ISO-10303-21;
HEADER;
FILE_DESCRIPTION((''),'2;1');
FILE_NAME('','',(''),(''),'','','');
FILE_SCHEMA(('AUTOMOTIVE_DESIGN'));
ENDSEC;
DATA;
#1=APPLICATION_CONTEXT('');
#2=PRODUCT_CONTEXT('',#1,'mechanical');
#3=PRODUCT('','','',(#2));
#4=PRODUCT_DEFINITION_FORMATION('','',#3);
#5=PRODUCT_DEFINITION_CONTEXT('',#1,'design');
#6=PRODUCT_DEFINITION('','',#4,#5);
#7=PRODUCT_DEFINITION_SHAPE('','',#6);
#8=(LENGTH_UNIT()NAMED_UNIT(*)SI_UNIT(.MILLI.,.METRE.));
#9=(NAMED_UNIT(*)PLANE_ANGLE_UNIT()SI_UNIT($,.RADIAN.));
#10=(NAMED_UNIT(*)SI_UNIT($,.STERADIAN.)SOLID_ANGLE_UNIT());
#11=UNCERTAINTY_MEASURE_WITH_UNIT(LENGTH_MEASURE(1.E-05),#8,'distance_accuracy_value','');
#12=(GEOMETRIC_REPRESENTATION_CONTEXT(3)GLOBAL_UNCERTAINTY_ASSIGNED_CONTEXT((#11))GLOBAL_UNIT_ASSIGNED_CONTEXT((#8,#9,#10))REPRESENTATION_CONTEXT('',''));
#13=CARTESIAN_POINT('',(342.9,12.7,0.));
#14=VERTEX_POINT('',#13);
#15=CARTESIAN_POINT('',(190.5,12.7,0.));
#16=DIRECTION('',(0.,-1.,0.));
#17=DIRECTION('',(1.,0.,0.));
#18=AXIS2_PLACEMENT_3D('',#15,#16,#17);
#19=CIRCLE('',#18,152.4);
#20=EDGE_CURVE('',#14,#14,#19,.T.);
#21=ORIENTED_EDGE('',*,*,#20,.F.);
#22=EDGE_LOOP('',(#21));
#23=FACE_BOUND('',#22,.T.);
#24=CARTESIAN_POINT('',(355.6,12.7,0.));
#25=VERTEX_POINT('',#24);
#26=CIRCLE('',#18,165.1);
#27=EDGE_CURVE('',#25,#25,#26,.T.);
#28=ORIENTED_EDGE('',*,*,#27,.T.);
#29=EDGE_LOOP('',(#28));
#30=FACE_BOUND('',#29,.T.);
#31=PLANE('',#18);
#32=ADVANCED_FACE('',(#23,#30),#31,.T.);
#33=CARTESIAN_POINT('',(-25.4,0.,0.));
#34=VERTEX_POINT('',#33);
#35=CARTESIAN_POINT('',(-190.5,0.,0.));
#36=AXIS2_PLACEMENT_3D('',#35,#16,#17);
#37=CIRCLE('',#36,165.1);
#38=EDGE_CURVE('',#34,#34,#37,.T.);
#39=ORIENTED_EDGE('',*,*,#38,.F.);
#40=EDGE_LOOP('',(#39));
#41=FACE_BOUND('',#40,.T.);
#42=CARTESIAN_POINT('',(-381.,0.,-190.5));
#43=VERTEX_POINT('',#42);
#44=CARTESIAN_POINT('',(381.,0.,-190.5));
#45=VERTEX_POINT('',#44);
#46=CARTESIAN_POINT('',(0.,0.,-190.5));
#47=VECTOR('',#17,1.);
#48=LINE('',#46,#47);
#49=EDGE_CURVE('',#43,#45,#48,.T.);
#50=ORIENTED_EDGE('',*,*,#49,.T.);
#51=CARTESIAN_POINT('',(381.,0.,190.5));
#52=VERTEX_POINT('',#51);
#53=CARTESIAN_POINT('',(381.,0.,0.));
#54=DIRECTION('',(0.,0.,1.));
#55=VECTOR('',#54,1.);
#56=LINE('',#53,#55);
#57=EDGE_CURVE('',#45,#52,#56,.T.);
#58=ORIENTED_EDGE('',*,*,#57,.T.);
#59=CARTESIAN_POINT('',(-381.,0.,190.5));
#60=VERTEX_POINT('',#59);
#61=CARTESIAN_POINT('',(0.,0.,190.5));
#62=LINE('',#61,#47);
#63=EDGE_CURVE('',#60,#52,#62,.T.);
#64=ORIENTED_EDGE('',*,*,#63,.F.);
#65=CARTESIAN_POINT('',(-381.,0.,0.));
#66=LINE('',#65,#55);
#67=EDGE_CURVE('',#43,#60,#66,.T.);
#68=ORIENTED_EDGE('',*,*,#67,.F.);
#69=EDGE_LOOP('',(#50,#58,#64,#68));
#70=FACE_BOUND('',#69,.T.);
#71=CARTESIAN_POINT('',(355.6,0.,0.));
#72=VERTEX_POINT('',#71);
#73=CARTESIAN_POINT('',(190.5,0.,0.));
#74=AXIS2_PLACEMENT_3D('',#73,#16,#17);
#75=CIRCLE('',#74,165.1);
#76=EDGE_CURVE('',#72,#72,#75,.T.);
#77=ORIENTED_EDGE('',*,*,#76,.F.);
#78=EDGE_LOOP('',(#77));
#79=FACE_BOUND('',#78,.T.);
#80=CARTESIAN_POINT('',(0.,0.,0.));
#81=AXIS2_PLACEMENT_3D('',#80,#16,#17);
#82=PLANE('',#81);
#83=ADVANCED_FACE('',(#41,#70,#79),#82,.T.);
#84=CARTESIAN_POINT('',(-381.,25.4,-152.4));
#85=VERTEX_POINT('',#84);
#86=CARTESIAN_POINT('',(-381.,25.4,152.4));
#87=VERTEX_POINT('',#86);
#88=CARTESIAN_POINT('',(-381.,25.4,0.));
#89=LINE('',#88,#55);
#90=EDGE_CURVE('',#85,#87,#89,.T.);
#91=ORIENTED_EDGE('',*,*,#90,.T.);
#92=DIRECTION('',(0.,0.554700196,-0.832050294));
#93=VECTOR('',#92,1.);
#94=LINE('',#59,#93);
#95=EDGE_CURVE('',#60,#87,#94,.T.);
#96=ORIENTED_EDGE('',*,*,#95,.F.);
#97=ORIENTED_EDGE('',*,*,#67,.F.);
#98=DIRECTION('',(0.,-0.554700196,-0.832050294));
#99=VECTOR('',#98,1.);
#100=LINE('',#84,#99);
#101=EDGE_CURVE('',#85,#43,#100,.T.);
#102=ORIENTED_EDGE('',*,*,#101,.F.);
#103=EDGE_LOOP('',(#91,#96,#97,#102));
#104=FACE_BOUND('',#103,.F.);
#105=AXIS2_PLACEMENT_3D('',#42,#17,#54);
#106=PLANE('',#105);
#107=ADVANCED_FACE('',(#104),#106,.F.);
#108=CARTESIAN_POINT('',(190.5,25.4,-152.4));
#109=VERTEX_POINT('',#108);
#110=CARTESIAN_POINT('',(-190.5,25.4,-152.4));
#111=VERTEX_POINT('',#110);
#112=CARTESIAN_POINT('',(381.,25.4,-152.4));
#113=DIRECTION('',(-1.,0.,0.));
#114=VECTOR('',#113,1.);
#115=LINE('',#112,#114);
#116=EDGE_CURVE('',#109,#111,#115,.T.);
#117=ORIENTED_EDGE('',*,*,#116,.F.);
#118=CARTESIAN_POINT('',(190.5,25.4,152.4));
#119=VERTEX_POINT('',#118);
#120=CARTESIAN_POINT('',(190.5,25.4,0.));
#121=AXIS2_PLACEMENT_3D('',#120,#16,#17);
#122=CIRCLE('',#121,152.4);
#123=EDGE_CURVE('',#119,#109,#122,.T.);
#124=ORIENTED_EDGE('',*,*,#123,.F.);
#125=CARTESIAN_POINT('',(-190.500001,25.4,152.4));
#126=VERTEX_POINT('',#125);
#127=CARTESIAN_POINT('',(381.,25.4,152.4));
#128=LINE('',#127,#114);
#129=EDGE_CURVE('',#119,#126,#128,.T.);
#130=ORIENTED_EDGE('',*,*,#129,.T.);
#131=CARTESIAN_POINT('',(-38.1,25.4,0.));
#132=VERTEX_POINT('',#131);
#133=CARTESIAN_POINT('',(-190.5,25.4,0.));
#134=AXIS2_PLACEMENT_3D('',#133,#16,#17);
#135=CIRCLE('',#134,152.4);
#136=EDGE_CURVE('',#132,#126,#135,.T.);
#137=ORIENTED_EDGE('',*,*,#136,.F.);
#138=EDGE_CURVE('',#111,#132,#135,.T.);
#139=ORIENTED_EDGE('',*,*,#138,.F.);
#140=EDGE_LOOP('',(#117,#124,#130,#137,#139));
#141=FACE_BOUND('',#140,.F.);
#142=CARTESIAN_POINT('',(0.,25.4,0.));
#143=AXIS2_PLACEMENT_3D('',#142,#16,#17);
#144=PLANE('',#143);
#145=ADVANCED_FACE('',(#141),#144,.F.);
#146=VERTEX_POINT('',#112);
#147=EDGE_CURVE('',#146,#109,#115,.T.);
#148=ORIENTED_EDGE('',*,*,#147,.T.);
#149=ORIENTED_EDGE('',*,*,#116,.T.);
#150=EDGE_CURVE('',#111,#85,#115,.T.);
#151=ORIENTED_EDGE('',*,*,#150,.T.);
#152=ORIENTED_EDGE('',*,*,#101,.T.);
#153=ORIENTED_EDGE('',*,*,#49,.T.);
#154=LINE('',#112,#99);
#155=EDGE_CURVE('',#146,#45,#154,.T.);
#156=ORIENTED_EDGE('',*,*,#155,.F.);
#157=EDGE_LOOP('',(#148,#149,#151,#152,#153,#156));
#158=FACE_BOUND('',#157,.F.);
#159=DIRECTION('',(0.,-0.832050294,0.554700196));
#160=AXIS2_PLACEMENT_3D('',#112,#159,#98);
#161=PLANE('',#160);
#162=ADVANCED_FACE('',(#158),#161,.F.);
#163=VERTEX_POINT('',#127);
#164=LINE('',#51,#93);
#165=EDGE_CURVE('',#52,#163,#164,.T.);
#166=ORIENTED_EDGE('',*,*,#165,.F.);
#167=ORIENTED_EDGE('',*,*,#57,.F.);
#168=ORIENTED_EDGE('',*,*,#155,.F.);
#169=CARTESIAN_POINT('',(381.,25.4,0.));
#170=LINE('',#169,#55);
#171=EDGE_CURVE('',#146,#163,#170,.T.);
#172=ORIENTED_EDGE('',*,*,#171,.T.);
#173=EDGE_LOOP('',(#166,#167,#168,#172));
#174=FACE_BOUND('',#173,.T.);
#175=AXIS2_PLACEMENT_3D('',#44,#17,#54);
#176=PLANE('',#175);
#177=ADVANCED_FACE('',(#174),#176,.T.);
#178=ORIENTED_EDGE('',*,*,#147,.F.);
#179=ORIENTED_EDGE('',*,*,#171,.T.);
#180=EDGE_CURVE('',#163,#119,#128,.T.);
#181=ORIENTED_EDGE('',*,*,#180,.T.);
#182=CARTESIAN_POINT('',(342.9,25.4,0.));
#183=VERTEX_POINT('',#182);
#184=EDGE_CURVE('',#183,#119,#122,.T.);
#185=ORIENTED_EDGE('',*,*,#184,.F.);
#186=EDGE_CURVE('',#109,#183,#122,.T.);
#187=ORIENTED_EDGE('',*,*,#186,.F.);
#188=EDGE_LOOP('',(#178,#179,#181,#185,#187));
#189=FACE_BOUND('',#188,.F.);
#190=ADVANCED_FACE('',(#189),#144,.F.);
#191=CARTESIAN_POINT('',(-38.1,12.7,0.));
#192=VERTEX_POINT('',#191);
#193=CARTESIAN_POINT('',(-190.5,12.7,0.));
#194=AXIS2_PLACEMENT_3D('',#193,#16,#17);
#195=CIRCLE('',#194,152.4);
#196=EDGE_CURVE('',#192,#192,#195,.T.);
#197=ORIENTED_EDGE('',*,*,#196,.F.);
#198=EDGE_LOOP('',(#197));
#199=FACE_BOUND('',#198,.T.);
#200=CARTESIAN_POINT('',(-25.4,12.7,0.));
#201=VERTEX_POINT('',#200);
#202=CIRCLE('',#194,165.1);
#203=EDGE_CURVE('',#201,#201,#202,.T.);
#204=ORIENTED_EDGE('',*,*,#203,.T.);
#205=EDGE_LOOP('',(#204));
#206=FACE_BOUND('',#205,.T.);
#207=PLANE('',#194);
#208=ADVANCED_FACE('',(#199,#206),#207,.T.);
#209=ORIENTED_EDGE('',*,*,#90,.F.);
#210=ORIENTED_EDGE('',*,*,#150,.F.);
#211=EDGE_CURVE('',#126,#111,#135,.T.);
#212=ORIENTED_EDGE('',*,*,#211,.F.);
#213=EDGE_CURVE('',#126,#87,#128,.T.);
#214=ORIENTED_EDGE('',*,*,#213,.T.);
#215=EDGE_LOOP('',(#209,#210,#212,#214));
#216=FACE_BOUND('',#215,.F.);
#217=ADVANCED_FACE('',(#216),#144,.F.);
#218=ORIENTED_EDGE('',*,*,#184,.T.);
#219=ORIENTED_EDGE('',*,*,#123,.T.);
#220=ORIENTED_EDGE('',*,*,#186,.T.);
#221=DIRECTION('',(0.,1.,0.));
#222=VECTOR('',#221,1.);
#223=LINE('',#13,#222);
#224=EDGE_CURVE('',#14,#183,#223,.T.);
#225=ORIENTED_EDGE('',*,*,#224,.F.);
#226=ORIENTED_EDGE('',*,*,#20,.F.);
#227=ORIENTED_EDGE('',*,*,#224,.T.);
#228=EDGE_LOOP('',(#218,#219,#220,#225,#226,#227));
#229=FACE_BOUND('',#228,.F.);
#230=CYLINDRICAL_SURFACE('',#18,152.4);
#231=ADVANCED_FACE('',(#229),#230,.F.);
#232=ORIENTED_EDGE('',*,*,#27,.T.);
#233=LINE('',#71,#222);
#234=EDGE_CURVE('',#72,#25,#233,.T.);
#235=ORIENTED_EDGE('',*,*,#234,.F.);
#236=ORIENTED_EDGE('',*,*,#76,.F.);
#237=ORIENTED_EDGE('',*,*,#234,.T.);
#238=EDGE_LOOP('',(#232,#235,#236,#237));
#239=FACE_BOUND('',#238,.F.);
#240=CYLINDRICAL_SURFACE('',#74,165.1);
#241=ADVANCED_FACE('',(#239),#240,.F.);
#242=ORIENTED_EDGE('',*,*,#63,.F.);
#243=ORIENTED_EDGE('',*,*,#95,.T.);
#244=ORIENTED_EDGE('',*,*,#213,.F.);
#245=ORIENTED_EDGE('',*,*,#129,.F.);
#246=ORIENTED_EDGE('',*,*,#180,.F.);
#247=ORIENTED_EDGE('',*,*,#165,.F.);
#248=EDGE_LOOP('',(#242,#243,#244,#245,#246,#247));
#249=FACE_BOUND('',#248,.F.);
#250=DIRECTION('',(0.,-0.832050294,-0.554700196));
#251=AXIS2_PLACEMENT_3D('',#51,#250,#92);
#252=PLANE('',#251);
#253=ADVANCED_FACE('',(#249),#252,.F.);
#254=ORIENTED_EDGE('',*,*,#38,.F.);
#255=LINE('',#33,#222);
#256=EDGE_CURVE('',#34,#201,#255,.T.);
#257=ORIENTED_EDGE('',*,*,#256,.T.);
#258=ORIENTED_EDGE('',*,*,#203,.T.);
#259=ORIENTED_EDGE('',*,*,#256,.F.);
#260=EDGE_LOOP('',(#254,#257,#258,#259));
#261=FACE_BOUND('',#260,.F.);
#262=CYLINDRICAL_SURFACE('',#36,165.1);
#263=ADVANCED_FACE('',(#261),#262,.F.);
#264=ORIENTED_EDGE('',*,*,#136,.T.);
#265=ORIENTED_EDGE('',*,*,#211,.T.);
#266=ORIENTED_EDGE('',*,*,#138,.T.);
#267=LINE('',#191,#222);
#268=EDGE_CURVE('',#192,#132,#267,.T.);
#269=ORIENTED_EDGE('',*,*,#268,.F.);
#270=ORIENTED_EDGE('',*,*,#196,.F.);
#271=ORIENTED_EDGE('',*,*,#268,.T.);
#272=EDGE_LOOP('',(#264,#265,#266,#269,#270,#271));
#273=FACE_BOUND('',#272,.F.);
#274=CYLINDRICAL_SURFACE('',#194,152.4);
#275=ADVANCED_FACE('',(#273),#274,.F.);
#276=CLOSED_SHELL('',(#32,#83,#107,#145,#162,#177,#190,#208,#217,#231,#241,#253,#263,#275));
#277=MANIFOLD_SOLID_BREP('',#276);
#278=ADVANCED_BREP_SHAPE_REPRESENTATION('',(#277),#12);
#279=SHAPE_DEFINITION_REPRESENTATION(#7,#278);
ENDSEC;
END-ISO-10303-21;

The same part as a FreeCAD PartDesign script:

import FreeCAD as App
import Part
import Sketcher
Q = App.Units.Quantity


def add_polygon(sketch, points):
    """Adds a closed chain of lines whose ends are joined by coincident constraints."""
    first, n = sketch.GeometryCount, len(points)
    for a, b in zip(points, points[1:] + points[:1]):
        sketch.addGeometry(Part.LineSegment(App.Vector(*a, 0), App.Vector(*b, 0)), False)
    for i in range(n):
        sketch.addConstraint(Sketcher.Constraint("Coincident", first + i, 2, first + (i + 1) % n, 1))

doc = App.newDocument("Part")
body = doc.addObject("PartDesign::Body", "Body")

sketch1 = body.newObject("Sketcher::SketchObject", "Sketch")
sketch1.AttachmentSupport = (doc.getObject("XZ_Plane"), [""])
sketch1.MapMode = "FlatFace"
add_polygon(sketch1, [(-381, 190.5), (-381, -190.5), (381, -190.5), (381, 190.5)])
sketch1.addConstraint([
    Sketcher.Constraint("Vertical", 0),
    Sketcher.Constraint("Horizontal", 1),
    Sketcher.Constraint("Vertical", 2),
    Sketcher.Constraint("Horizontal", 3),
    Sketcher.Constraint("Symmetric", 0, 2, 2, 2, -1, 1),
    Sketcher.Constraint("DistanceX", 1, 1, 1, 2, Q("30 in")),
    Sketcher.Constraint("DistanceY", 0, 2, 0, 1, Q("15 in")),
])
pad1 = body.newObject("PartDesign::Pad", "Pad")
pad1.Profile = sketch1
pad1.Length = Q("1 in")
pad1.Reversed = True

sketch2 = body.newObject("Sketcher::SketchObject", "Sketch001")
sketch2.AttachmentSupport = (doc.getObject("XZ_Plane"), [""])
sketch2.MapMode = "FlatFace"
sketch2.addGeometry([
    Part.Circle(App.Vector(-190.5, 0, 0), App.Vector(0, 0, 1), 165.1),
    Part.Circle(App.Vector(190.5, 0, 0), App.Vector(0, 0, 1), 165.1),
], False)
sketch2.addConstraint([
    Sketcher.Constraint("Equal", 0, 1),
    Sketcher.Constraint("Symmetric", 0, 3, 1, 3, -1, 1),
    Sketcher.Constraint("PointOnObject", 0, 3, -1),
    Sketcher.Constraint("Diameter", 0, Q("13 in")),
    Sketcher.Constraint("DistanceX", 0, 3, 1, 3, Q("15 in")),
])
pocket1 = body.newObject("PartDesign::Pocket", "Pocket")
pocket1.Profile = sketch2
pocket1.Length = Q("0.5 in")

sketch3 = body.newObject("Sketcher::SketchObject", "Sketch002")
sketch3.AttachmentSupport = (doc.getObject("XZ_Plane"), [""])
sketch3.MapMode = "FlatFace"
sketch3.AttachmentOffset = App.Placement(App.Vector(0, 0, -0.5 * 25.4), App.Rotation())
sketch3.addGeometry([
    Part.Circle(App.Vector(-190.5, 0, 0), App.Vector(0, 0, 1), 152.4),
    Part.Circle(App.Vector(190.5, 0, 0), App.Vector(0, 0, 1), 152.4),
], False)
sketch3.addConstraint([
    Sketcher.Constraint("Equal", 0, 1),
    Sketcher.Constraint("Symmetric", 0, 3, 1, 3, -1, 1),
    Sketcher.Constraint("PointOnObject", 0, 3, -1),
    Sketcher.Constraint("Diameter", 0, Q("12 in")),
    Sketcher.Constraint("DistanceX", 0, 3, 1, 3, Q("15 in")),
])
pocket2 = body.newObject("PartDesign::Pocket", "Pocket001")
pocket2.Profile = sketch3
pocket2.Length = Q("1 in")

sketch4 = body.newObject("Sketcher::SketchObject", "Sketch003")
sketch4.AttachmentSupport = (doc.getObject("YZ_Plane"), [""])
sketch4.MapMode = "FlatFace"
sketch4.AttachmentOffset = App.Placement(App.Vector(0, 0, 15 * 25.4), App.Rotation())
add_polygon(sketch4, [(0, -190.5), (25.4, -190.5), (25.4, -152.4)])
add_polygon(sketch4, [(25.4, 190.5), (0, 190.5), (25.4, 152.4)])
sketch4.addConstraint([
    Sketcher.Constraint("Horizontal", 0),
    Sketcher.Constraint("Vertical", 1),
    Sketcher.Constraint("Horizontal", 3),
    Sketcher.Constraint("Vertical", 5),
    Sketcher.Constraint("Symmetric", 2, 2, 3, 2, -1, 1),
    Sketcher.Constraint("Symmetric", 1, 2, 4, 2, -1),
    Sketcher.Constraint("PointOnObject", 2, 2, -2),
    Sketcher.Constraint("DistanceX", 0, 1, 0, 2, Q("1 in")),
    Sketcher.Constraint("DistanceY", 1, 1, 1, 2, Q("1.5 in")),
    Sketcher.Constraint("DistanceY", 1, 2, -1, 1, Q("6 in")),
])
pocket3 = body.newObject("PartDesign::Pocket", "Pocket002")
pocket3.Profile = sketch4
pocket3.Length = Q("30 in")

doc.recompute()
